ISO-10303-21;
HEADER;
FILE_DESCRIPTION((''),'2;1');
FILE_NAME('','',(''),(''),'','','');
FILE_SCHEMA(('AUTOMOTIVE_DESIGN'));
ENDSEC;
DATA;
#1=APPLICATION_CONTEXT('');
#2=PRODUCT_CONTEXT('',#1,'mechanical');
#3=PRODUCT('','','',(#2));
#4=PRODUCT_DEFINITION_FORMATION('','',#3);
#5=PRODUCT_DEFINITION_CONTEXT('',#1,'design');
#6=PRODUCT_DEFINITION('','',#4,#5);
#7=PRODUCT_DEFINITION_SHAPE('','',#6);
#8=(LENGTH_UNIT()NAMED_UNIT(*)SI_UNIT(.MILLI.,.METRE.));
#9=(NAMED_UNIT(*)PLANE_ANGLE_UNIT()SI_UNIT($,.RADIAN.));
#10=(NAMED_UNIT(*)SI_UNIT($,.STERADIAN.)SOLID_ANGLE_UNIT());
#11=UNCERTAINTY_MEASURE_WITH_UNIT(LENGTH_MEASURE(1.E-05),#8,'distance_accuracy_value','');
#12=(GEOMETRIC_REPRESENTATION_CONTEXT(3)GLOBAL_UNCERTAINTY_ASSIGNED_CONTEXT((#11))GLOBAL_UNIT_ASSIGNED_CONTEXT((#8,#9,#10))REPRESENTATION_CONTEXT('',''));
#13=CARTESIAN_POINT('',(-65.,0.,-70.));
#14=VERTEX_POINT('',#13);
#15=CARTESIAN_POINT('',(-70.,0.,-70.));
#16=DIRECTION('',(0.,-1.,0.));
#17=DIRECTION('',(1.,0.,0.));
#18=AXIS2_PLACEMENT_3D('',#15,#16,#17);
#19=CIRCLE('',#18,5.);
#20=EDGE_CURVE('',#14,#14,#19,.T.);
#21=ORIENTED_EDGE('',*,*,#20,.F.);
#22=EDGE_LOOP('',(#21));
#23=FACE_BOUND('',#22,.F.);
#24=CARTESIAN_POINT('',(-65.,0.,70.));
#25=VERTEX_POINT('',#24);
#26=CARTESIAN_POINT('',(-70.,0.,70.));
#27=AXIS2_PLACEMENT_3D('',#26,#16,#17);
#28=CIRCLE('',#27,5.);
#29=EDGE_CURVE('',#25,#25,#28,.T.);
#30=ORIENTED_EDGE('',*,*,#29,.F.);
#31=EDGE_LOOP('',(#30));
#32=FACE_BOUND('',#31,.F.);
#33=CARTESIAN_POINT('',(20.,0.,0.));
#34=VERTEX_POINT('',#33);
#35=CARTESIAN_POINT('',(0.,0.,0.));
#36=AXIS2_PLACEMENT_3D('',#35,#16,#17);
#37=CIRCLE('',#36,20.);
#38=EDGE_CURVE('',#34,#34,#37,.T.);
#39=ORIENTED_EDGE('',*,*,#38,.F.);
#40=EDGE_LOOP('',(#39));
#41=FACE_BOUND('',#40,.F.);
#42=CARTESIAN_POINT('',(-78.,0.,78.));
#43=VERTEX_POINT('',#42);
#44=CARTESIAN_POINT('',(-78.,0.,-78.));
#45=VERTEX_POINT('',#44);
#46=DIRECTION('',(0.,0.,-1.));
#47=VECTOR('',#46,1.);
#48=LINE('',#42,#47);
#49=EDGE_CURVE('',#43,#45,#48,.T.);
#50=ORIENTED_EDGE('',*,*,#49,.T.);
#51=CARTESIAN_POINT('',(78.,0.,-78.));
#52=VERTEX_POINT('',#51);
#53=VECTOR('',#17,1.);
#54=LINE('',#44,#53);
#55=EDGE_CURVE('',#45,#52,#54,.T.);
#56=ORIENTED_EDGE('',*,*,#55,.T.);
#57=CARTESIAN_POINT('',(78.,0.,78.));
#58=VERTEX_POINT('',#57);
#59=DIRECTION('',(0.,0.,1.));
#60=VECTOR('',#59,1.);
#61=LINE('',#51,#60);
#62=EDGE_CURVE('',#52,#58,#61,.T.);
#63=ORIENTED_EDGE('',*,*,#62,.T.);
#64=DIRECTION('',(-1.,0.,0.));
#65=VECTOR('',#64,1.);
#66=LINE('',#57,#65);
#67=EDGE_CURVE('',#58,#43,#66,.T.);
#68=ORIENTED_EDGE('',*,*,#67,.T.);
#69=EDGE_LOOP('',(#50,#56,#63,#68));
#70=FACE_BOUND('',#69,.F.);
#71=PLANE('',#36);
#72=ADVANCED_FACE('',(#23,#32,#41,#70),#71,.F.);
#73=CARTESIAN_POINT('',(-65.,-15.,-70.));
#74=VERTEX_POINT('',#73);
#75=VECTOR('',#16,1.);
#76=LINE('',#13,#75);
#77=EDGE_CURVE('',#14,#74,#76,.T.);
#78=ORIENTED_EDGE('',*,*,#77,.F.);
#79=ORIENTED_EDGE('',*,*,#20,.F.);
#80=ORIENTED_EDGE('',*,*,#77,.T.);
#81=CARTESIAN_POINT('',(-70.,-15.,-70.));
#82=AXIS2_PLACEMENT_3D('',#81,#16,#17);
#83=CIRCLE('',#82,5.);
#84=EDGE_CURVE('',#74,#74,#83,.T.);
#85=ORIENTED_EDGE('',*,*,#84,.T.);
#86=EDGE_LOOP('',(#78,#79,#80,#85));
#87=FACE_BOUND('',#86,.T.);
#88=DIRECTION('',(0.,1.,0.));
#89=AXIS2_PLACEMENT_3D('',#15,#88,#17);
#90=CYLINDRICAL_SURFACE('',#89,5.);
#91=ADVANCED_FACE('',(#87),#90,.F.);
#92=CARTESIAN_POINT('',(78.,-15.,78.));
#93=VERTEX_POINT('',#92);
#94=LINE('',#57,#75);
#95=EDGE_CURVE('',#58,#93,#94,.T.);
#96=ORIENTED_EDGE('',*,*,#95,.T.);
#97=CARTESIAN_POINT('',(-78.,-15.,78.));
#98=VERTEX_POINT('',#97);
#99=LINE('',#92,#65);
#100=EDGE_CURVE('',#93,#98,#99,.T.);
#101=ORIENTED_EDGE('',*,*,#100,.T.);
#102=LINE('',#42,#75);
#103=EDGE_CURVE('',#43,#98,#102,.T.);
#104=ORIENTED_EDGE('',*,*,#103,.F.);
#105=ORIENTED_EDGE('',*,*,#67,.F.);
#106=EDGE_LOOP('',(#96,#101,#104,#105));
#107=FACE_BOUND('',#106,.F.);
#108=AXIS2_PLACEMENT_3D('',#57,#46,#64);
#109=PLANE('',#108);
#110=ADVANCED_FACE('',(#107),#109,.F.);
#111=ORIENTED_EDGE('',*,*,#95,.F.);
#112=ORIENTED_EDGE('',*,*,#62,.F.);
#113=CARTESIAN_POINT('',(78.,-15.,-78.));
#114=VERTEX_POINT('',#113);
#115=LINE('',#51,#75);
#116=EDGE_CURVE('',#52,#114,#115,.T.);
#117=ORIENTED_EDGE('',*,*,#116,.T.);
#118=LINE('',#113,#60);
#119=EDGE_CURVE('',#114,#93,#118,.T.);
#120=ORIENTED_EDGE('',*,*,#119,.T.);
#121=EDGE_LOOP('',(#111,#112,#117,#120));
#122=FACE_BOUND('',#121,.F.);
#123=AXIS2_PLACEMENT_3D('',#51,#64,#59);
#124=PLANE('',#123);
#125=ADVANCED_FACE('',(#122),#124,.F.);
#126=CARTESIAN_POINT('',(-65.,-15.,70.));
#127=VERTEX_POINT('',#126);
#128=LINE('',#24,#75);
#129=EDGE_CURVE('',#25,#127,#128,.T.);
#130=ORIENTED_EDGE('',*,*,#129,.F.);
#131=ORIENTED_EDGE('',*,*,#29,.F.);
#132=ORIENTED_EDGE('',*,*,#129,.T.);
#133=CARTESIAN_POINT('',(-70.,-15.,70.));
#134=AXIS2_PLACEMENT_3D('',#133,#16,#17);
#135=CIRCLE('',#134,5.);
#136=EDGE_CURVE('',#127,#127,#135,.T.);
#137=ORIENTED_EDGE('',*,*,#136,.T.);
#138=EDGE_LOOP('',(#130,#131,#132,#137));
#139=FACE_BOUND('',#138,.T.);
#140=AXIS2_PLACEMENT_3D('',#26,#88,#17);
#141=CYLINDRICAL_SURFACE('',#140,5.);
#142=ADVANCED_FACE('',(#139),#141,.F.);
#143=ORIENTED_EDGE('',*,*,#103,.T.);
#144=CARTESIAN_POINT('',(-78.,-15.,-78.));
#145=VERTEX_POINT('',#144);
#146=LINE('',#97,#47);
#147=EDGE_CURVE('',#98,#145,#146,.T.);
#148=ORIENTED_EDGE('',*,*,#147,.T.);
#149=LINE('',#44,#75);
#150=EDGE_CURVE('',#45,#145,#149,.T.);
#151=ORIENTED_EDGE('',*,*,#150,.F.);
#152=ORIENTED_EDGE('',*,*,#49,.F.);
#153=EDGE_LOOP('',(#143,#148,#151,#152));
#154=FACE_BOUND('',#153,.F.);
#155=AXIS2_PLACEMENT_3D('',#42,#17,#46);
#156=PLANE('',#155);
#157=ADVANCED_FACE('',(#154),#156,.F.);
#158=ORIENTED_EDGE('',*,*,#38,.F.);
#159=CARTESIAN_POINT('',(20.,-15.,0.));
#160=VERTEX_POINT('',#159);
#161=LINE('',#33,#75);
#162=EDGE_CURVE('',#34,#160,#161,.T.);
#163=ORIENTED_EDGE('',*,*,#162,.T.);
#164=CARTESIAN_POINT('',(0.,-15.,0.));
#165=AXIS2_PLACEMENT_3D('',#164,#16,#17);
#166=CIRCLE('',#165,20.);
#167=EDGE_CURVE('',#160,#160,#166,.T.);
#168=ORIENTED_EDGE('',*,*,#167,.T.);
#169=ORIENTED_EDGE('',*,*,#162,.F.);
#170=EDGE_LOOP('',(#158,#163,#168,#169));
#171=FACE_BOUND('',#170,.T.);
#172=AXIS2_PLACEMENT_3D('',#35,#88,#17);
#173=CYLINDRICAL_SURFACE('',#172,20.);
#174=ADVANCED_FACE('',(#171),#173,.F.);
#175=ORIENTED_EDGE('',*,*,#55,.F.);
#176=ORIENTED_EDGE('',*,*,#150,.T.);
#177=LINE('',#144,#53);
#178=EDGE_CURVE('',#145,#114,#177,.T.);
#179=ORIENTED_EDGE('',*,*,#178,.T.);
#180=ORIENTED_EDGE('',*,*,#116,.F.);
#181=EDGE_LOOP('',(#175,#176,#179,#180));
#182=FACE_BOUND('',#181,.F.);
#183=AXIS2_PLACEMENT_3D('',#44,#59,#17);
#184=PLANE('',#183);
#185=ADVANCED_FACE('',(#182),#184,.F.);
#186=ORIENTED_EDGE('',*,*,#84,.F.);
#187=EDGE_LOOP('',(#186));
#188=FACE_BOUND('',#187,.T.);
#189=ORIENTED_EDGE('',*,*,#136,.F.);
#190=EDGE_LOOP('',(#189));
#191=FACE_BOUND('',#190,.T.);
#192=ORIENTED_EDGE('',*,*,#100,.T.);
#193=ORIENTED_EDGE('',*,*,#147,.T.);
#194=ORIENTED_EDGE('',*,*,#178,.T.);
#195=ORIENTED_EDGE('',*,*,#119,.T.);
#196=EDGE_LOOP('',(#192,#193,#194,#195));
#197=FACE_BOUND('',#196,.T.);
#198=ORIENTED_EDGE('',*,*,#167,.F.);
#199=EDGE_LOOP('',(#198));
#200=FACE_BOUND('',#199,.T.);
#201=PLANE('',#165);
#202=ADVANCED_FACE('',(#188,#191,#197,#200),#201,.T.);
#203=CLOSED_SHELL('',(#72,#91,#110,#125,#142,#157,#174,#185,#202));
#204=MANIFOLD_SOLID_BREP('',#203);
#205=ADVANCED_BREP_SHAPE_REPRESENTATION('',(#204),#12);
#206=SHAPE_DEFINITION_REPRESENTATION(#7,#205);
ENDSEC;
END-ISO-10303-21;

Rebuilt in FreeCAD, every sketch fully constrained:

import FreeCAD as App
import Part
import Sketcher
from FreeCAD import Vector


def add_polygon(sketch, points):
    """Adds a closed chain of lines whose ends are joined by coincident constraints."""
    first, n = sketch.GeometryCount, len(points)
    for a, b in zip(points, points[1:] + points[:1]):
        sketch.addGeometry(Part.LineSegment(App.Vector(*a, 0), App.Vector(*b, 0)), False)
    for i in range(n):
        sketch.addConstraint(Sketcher.Constraint("Coincident", first + i, 2, first + (i + 1) % n, 1))

doc = App.newDocument("Part")
body = doc.addObject("PartDesign::Body", "Body")

# Sketch on XZ plane
sketch1 = body.newObject("Sketcher::SketchObject", "Sketch")
sketch1.AttachmentSupport = (doc.getObject("XZ_Plane"), [""])
sketch1.MapMode = "FlatFace"
add_polygon(sketch1, [(-78, 78), (-78, -78), (78, -78), (78, 78)])  # lines 0-3
sketch1.addGeometry(Part.Circle(Vector(-70, -70, 0), Vector(0, 0, 1), 5), False)  # 4
sketch1.addGeometry(Part.Circle(Vector(-70, 70, 0), Vector(0, 0, 1), 5), False)  # 5
sketch1.addGeometry(Part.Circle(Vector(0, 0, 0), Vector(0, 0, 1), 20), False)  # 6
sketch1.addConstraint([
    Sketcher.Constraint("Vertical", 0),
    Sketcher.Constraint("Horizontal", 1),
    Sketcher.Constraint("Vertical", 2),
    Sketcher.Constraint("Horizontal", 3),
    Sketcher.Constraint("Coincident", 6, 3, -1, 1),
    Sketcher.Constraint("Equal", 4, 5),
    Sketcher.Constraint("Symmetric", 0, 2, 2, 2, -1, 1),
    Sketcher.Constraint("Symmetric", 4, 3, 5, 3, -1),
    Sketcher.Constraint("Equal", 3, 0),
    Sketcher.Constraint("Diameter", 4, 10.0),
    Sketcher.Constraint("Diameter", 6, 40.0),
    Sketcher.Constraint("DistanceX", 1, 1, 1, 2, 156.0),
    Sketcher.Constraint("DistanceX", 4, 3, -1, 1, 70.0),
    Sketcher.Constraint("DistanceY", 4, 3, -1, 1, 70.0),
])
pad1 = body.newObject("PartDesign::Pad", "Pad")
pad1.Profile = sketch1
pad1.Length = 15

doc.recompute()
